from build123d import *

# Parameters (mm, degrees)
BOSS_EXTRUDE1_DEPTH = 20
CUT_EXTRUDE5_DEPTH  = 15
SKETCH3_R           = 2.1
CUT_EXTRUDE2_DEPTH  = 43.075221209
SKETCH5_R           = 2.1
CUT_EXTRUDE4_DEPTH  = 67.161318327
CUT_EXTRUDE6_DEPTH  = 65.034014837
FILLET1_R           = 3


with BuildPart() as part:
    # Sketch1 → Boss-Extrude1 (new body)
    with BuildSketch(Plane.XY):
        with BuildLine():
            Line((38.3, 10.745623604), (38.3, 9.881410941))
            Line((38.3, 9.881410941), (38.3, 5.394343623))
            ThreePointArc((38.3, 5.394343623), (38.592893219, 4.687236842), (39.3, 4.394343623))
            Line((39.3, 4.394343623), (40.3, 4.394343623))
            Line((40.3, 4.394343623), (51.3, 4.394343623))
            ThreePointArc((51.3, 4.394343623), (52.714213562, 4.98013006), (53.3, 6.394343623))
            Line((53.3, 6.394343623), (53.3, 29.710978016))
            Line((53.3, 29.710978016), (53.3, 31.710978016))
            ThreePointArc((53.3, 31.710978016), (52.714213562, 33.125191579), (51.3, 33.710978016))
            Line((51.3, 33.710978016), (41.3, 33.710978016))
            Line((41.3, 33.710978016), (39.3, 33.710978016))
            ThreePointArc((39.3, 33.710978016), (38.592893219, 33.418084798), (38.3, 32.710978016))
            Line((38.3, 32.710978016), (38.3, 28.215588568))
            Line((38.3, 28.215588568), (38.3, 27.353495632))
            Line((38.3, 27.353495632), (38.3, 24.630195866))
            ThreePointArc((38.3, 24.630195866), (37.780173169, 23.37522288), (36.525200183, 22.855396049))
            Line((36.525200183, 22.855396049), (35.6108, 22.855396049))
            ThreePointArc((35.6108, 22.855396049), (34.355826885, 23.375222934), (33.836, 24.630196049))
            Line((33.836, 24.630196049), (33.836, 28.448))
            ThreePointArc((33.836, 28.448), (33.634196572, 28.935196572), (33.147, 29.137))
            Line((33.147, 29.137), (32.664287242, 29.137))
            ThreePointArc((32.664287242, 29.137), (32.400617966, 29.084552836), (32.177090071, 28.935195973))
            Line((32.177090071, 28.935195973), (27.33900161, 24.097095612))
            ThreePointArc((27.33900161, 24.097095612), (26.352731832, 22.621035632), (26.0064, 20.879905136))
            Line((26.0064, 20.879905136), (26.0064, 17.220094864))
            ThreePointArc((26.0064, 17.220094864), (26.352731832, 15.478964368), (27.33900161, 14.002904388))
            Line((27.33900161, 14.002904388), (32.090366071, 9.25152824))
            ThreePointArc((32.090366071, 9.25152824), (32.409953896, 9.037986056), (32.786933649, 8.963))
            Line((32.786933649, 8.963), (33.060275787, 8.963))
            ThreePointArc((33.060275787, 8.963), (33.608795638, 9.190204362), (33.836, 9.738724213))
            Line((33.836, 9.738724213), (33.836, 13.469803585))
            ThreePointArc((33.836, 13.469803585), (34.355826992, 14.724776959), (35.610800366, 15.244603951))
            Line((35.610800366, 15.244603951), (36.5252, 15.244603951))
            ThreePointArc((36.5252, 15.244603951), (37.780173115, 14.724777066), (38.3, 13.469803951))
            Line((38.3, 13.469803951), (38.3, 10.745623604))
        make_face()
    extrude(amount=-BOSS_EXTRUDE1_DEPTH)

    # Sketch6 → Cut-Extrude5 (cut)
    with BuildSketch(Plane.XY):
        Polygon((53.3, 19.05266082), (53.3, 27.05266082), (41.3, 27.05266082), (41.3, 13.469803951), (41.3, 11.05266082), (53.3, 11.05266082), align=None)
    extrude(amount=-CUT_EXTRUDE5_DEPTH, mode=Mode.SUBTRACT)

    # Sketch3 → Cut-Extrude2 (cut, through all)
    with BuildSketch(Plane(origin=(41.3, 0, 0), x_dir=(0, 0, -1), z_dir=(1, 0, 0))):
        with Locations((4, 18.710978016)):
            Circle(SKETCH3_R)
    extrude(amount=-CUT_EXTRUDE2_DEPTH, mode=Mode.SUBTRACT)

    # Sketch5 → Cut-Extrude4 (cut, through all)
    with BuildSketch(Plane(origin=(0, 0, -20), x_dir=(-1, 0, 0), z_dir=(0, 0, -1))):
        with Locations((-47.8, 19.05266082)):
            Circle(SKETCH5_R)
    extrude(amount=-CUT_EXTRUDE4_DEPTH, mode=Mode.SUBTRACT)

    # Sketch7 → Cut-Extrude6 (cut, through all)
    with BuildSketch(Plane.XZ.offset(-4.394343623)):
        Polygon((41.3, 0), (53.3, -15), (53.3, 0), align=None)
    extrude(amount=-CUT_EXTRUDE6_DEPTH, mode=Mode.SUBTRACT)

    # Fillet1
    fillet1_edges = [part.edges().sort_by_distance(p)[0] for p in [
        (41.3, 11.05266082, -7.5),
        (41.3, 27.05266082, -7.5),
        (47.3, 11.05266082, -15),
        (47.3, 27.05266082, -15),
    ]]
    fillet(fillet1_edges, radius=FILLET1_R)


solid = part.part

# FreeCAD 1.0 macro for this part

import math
import FreeCAD as App
import Part
import Sketcher
Q = App.Units.Quantity


def edges_at(feature, points):
    """Names of the edges that pass closest to the given points."""
    edges = feature.Shape.Edges
    near = lambda p: min(range(len(edges)), key=lambda i: edges[i].distToShape(Part.Vertex(*p))[0])
    return sorted({f"Edge{near(p) + 1}" for p in points})

doc = App.newDocument("Part")
body = doc.addObject("PartDesign::Body", "Body")

# Sketch on XY plane
sketch1 = body.newObject("Sketcher::SketchObject", "Sketch")
sketch1.AttachmentSupport = (doc.getObject("XY_Plane"), [""])
sketch1.MapMode = "FlatFace"
sketch1.addGeometry([
    Part.ArcOfCircle(Part.Circle(App.Vector(39.3, 5.394344, 0), App.Vector(0, 0, 1), 1), math.radians(-180), math.radians(-90)),  # 0
    Part.LineSegment(App.Vector(39.3, 4.394344, 0), App.Vector(51.3, 4.394344, 0)),  # 1
    Part.ArcOfCircle(Part.Circle(App.Vector(51.3, 6.394344, 0), App.Vector(0, 0, 1), 2), math.radians(-90), math.radians(0)),  # 2
    Part.LineSegment(App.Vector(53.3, 6.394344, 0), App.Vector(53.3, 31.710978, 0)),  # 3
    Part.ArcOfCircle(Part.Circle(App.Vector(51.3, 31.710978, 0), App.Vector(0, 0, 1), 2), math.radians(0), math.radians(90)),  # 4
    Part.LineSegment(App.Vector(51.3, 33.710978, 0), App.Vector(39.3, 33.710978, 0)),  # 5
    Part.ArcOfCircle(Part.Circle(App.Vector(39.3, 32.710978, 0), App.Vector(0, 0, 1), 1), math.radians(90), math.radians(180)),  # 6
    Part.LineSegment(App.Vector(38.3, 32.710978, 0), App.Vector(38.3, 24.630196, 0)),  # 7
    Part.ArcOfCircle(Part.Circle(App.Vector(36.5252, 24.630196, 0), App.Vector(0, 0, 1), 1.7748), math.radians(-90), math.radians(0)),  # 8
    Part.LineSegment(App.Vector(36.5252, 22.855396, 0), App.Vector(35.6108, 22.855396, 0)),  # 9
    Part.ArcOfCircle(Part.Circle(App.Vector(35.6108, 24.630196, 0), App.Vector(0, 0, 1), 1.7748), math.radians(-180), math.radians(-90)),  # 10
    Part.LineSegment(App.Vector(33.836, 24.630196, 0), App.Vector(33.836, 28.448, 0)),  # 11
    Part.ArcOfCircle(Part.Circle(App.Vector(33.147, 28.448, 0), App.Vector(0, 0, 1), 0.689), math.radians(0), math.radians(90)),  # 12
    Part.LineSegment(App.Vector(33.147, 29.137, 0), App.Vector(32.664287, 29.137, 0)),  # 13
    Part.ArcOfCircle(Part.Circle(App.Vector(32.664287, 28.448, 0), App.Vector(0, 0, 1), 0.689), math.radians(90), math.radians(135.000071)),  # 14
    Part.LineSegment(App.Vector(32.17709, 28.935196, 0), App.Vector(27.339002, 24.097096, 0)),  # 15
    Part.ArcOfCircle(Part.Circle(App.Vector(30.5562, 20.879905, 0), App.Vector(0, 0, 1), 4.5498), math.radians(135.00007), math.radians(180)),  # 16
    Part.LineSegment(App.Vector(26.0064, 20.879905, 0), App.Vector(26.0064, 17.220095, 0)),  # 17
    Part.ArcOfCircle(Part.Circle(App.Vector(30.5562, 17.220095, 0), App.Vector(0, 0, 1), 4.5498), math.radians(180), math.radians(224.99993)),  # 18
    Part.LineSegment(App.Vector(27.339002, 14.002904, 0), App.Vector(32.090366, 9.251528, 0)),  # 19
    Part.ArcOfCircle(Part.Circle(App.Vector(32.786934, 9.948094, 0), App.Vector(0, 0, 1), 0.985094), math.radians(-135.00007), math.radians(-90)),  # 20
    Part.LineSegment(App.Vector(32.786934, 8.963, 0), App.Vector(33.060276, 8.963, 0)),  # 21
    Part.ArcOfCircle(Part.Circle(App.Vector(33.060276, 9.738724, 0), App.Vector(0, 0, 1), 0.775724), math.radians(-90), math.radians(0)),  # 22
    Part.LineSegment(App.Vector(33.836, 9.738724, 0), App.Vector(33.836, 13.469804, 0)),  # 23
    Part.ArcOfCircle(Part.Circle(App.Vector(35.6108, 13.469804, 0), App.Vector(0, 0, 1), 1.7748), math.radians(90), math.radians(180)),  # 24
    Part.LineSegment(App.Vector(35.6108, 15.244604, 0), App.Vector(36.5252, 15.244604, 0)),  # 25
    Part.ArcOfCircle(Part.Circle(App.Vector(36.5252, 13.469804, 0), App.Vector(0, 0, 1), 1.7748), math.radians(0), math.radians(90)),  # 26
    Part.LineSegment(App.Vector(38.3, 13.469804, 0), App.Vector(38.3, 5.394344, 0)),  # 27
], False)
sketch1.addConstraint([
    Sketcher.Constraint("Tangent", 0, 2, 1, 1),
    Sketcher.Constraint("Tangent", 1, 2, 2, 1),
    Sketcher.Constraint("Tangent", 2, 2, 3, 1),
    Sketcher.Constraint("Tangent", 3, 2, 4, 1),
    Sketcher.Constraint("Tangent", 4, 2, 5, 1),
    Sketcher.Constraint("Tangent", 5, 2, 6, 1),
    Sketcher.Constraint("Tangent", 6, 2, 7, 1),
    Sketcher.Constraint("Tangent", 7, 2, 8, 2),
    Sketcher.Constraint("Tangent", 8, 1, 9, 1),
    Sketcher.Constraint("Tangent", 9, 2, 10, 2),
    Sketcher.Constraint("Tangent", 10, 1, 11, 1),
    Sketcher.Constraint("Tangent", 11, 2, 12, 1),
    Sketcher.Constraint("Tangent", 12, 2, 13, 1),
    Sketcher.Constraint("Tangent", 13, 2, 14, 1),
    Sketcher.Constraint("Tangent", 14, 2, 15, 1),
    Sketcher.Constraint("Tangent", 15, 2, 16, 1),
    Sketcher.Constraint("Tangent", 16, 2, 17, 1),
    Sketcher.Constraint("Tangent", 17, 2, 18, 1),
    Sketcher.Constraint("Tangent", 18, 2, 19, 1),
    Sketcher.Constraint("Tangent", 19, 2, 20, 1),
    Sketcher.Constraint("Tangent", 20, 2, 21, 1),
    Sketcher.Constraint("Tangent", 21, 2, 22, 1),
    Sketcher.Constraint("Tangent", 22, 2, 23, 1),
    Sketcher.Constraint("Tangent", 23, 2, 24, 2),
    Sketcher.Constraint("Tangent", 24, 1, 25, 1),
    Sketcher.Constraint("Tangent", 25, 2, 26, 2),
    Sketcher.Constraint("Tangent", 26, 1, 27, 1),
    Sketcher.Constraint("Tangent", 27, 2, 0, 1),
    Sketcher.Constraint("Horizontal", 1),
    Sketcher.Constraint("Vertical", 3),
    Sketcher.Constraint("Horizontal", 5),
    Sketcher.Constraint("Vertical", 7),
    Sketcher.Constraint("Horizontal", 9),
    Sketcher.Constraint("Vertical", 11),
    Sketcher.Constraint("Horizontal", 13),
    Sketcher.Constraint("Vertical", 17),
    Sketcher.Constraint("Horizontal", 21),
    Sketcher.Constraint("Vertical", 23),
    Sketcher.Constraint("Horizontal", 25),
    Sketcher.Constraint("Vertical", 27),
    Sketcher.Constraint("Equal", 2, 4),
    Sketcher.Constraint("Equal", 0, 6),
    Sketcher.Constraint("Equal", 8, 10),
    Sketcher.Constraint("Equal", 12, 14),
    Sketcher.Constraint("Equal", 16, 18),
    Sketcher.Constraint("Equal", 10, 24),
    Sketcher.Constraint("Equal", 24, 26),
    Sketcher.Constraint("Vertical", 0, 3, 6, 3),
    Sketcher.Constraint("Vertical", 10, 3, 24, 3),
    Sketcher.Constraint("Vertical", 15, 2, 18, 2),
    Sketcher.Constraint("Radius", 0, Q("1 mm")),
    Sketcher.Constraint("Radius", 2, Q("2 mm")),
    Sketcher.Constraint("DistanceX", 1, 1, 1, 2, Q("12 mm")),
    Sketcher.Constraint("Radius", 12, Q("0.689 mm")),
    Sketcher.Constraint("DistanceX", -1, 1, 0, 3, Q("39.3 mm")),
    Sketcher.Constraint("Radius", 8, Q("1.7748 mm")),
    Sketcher.Constraint("Radius", 16, Q("4.5498 mm")),
    Sketcher.Constraint("DistanceX", 9, 2, 9, 1, Q("0.9144 mm")),
    Sketcher.Constraint("DistanceY", -1, 1, 12, 3, Q("28.448 mm")),
    Sketcher.Constraint("DistanceX", -1, 1, 15, 2, Q("27.339002 mm")),
    Sketcher.Constraint("DistanceY", -1, 1, 20, 2, Q("8.963 mm")),
    Sketcher.Constraint("Radius", 20, Q("0.985094 mm")),
    Sketcher.Constraint("Radius", 22, Q("0.775724 mm")),
    Sketcher.Constraint("DistanceX", 16, 3, 8, 3, Q("5.969 mm")),
    Sketcher.Constraint("DistanceY", 20, 3, 18, 3, Q("7.272001 mm")),
    Sketcher.Constraint("DistanceY", 17, 2, 15, 2, Q("6.877001 mm")),
    Sketcher.Constraint("DistanceY", 23, 1, 23, 2, Q("3.731079 mm")),
    Sketcher.Constraint("DistanceY", 27, 2, 27, 1, Q("8.07546 mm")),
    Sketcher.Constraint("DistanceY", 18, 3, 10, 3, Q("7.410101 mm")),
    Sketcher.Constraint("DistanceY", 3, 1, 3, 2, Q("25.316634 mm")),
])
pad1 = body.newObject("PartDesign::Pad", "Pad")
pad1.Profile = sketch1
pad1.Length = 20
pad1.Reversed = True

# Sketch on XY plane
sketch2 = body.newObject("Sketcher::SketchObject", "Sketch001")
sketch2.AttachmentSupport = (doc.getObject("XY_Plane"), [""])
sketch2.MapMode = "FlatFace"
sketch2.addGeometry([
    Part.LineSegment(App.Vector(53.3, 27.052661, 0), App.Vector(41.3, 27.052661, 0)),
    Part.LineSegment(App.Vector(41.3, 27.052661, 0), App.Vector(41.3, 11.052661, 0)),
    Part.LineSegment(App.Vector(41.3, 11.052661, 0), App.Vector(53.3, 11.052661, 0)),
    Part.LineSegment(App.Vector(53.3, 11.052661, 0), App.Vector(53.3, 27.052661, 0)),
], False)
sketch2.addConstraint([
    Sketcher.Constraint("Coincident", 0, 2, 1, 1),
    Sketcher.Constraint("Coincident", 1, 2, 2, 1),
    Sketcher.Constraint("Coincident", 2, 2, 3, 1),
    Sketcher.Constraint("Coincident", 3, 2, 0, 1),
    Sketcher.Constraint("Horizontal", 0),
    Sketcher.Constraint("Vertical", 1),
    Sketcher.Constraint("Horizontal", 2),
    Sketcher.Constraint("Vertical", 3),
    Sketcher.Constraint("DistanceX", 0, 2, 0, 1, Q("12 mm")),
    Sketcher.Constraint("DistanceY", 1, 2, 1, 1, Q("16 mm")),
    Sketcher.Constraint("DistanceX", -1, 1, 0, 2, Q("41.3 mm")),
    Sketcher.Constraint("DistanceY", -1, 1, 0, 2, Q("27.052661 mm")),
])
pocket1 = body.newObject("PartDesign::Pocket", "Pocket")
pocket1.Profile = sketch2
pocket1.Length = 15

# Sketch on YZ plane
sketch3 = body.newObject("Sketcher::SketchObject", "Sketch002")
sketch3.AttachmentSupport = (doc.getObject("YZ_Plane"), [""])
sketch3.MapMode = "FlatFace"
sketch3.AttachmentOffset = App.Placement(App.Vector(0, 0, 41.3), App.Rotation())
sketch3.addGeometry(Part.Circle(App.Vector(18.710978, -4, 0), App.Vector(0, 0, 1), 2.1), False)
sketch3.addConstraint([
    Sketcher.Constraint("Diameter", 0, Q("4.2 mm")),
    Sketcher.Constraint("DistanceY", 0, 3, -1, 1, Q("4 mm")),
    Sketcher.Constraint("DistanceX", -1, 1, 0, 3, Q("18.710978 mm")),
])
pocket2 = body.newObject("PartDesign::Pocket", "Pocket001")
pocket2.Profile = sketch3
pocket2.Type = "ThroughAll"

# Sketch on XY plane
sketch4 = body.newObject("Sketcher::SketchObject", "Sketch003")
sketch4.AttachmentSupport = (doc.getObject("XY_Plane"), [""])
sketch4.MapMode = "FlatFace"
sketch4.AttachmentOffset = App.Placement(App.Vector(0, 0, -20), App.Rotation())
sketch4.addGeometry(Part.Circle(App.Vector(47.8, 19.052661, 0), App.Vector(0, 0, 1), 2.1), False)
sketch4.addConstraint([
    Sketcher.Constraint("Diameter", 0, Q("4.2 mm")),
    Sketcher.Constraint("DistanceX", -1, 1, 0, 3, Q("47.8 mm")),
    Sketcher.Constraint("DistanceY", -1, 1, 0, 3, Q("19.052661 mm")),
])
pocket3 = body.newObject("PartDesign::Pocket", "Pocket002")
pocket3.Profile = sketch4
pocket3.Type = "ThroughAll"
pocket3.Reversed = True

# Sketch on XZ plane
sketch5 = body.newObject("Sketcher::SketchObject", "Sketch004")
sketch5.AttachmentSupport = (doc.getObject("XZ_Plane"), [""])
sketch5.MapMode = "FlatFace"
sketch5.AttachmentOffset = App.Placement(App.Vector(0, 0, -4.394344), App.Rotation())
sketch5.addGeometry([
    Part.LineSegment(App.Vector(41.3, 0, 0), App.Vector(53.3, -15, 0)),
    Part.LineSegment(App.Vector(53.3, -15, 0), App.Vector(53.3, 0, 0)),
    Part.LineSegment(App.Vector(53.3, 0, 0), App.Vector(41.3, 0, 0)),
], False)
sketch5.addConstraint([
    Sketcher.Constraint("Coincident", 0, 2, 1, 1),
    Sketcher.Constraint("Coincident", 1, 2, 2, 1),
    Sketcher.Constraint("Coincident", 2, 2, 0, 1),
    Sketcher.Constraint("Vertical", 1),
    Sketcher.Constraint("Horizontal", 2),
    Sketcher.Constraint("PointOnObject", 1, 2, -1),
    Sketcher.Constraint("DistanceX", 2, 2, 2, 1, Q("12 mm")),
    Sketcher.Constraint("DistanceY", 1, 1, 1, 2, Q("15 mm")),
    Sketcher.Constraint("DistanceX", -1, 1, 0, 2, Q("53.3 mm")),
])
pocket4 = body.newObject("PartDesign::Pocket", "Pocket003")
pocket4.Profile = sketch5
pocket4.Type = "ThroughAll"
doc.recompute()

fillet = body.newObject("PartDesign::Fillet", "Fillet")
fillet.Base = (pocket4, edges_at(pocket4, [
    (41.3, 11.053, -7.5),
    (41.3, 27.053, -7.5),
    (47.3, 11.053, -15),
    (47.3, 27.053, -15),
]))
fillet.Radius = 3

doc.recompute()
